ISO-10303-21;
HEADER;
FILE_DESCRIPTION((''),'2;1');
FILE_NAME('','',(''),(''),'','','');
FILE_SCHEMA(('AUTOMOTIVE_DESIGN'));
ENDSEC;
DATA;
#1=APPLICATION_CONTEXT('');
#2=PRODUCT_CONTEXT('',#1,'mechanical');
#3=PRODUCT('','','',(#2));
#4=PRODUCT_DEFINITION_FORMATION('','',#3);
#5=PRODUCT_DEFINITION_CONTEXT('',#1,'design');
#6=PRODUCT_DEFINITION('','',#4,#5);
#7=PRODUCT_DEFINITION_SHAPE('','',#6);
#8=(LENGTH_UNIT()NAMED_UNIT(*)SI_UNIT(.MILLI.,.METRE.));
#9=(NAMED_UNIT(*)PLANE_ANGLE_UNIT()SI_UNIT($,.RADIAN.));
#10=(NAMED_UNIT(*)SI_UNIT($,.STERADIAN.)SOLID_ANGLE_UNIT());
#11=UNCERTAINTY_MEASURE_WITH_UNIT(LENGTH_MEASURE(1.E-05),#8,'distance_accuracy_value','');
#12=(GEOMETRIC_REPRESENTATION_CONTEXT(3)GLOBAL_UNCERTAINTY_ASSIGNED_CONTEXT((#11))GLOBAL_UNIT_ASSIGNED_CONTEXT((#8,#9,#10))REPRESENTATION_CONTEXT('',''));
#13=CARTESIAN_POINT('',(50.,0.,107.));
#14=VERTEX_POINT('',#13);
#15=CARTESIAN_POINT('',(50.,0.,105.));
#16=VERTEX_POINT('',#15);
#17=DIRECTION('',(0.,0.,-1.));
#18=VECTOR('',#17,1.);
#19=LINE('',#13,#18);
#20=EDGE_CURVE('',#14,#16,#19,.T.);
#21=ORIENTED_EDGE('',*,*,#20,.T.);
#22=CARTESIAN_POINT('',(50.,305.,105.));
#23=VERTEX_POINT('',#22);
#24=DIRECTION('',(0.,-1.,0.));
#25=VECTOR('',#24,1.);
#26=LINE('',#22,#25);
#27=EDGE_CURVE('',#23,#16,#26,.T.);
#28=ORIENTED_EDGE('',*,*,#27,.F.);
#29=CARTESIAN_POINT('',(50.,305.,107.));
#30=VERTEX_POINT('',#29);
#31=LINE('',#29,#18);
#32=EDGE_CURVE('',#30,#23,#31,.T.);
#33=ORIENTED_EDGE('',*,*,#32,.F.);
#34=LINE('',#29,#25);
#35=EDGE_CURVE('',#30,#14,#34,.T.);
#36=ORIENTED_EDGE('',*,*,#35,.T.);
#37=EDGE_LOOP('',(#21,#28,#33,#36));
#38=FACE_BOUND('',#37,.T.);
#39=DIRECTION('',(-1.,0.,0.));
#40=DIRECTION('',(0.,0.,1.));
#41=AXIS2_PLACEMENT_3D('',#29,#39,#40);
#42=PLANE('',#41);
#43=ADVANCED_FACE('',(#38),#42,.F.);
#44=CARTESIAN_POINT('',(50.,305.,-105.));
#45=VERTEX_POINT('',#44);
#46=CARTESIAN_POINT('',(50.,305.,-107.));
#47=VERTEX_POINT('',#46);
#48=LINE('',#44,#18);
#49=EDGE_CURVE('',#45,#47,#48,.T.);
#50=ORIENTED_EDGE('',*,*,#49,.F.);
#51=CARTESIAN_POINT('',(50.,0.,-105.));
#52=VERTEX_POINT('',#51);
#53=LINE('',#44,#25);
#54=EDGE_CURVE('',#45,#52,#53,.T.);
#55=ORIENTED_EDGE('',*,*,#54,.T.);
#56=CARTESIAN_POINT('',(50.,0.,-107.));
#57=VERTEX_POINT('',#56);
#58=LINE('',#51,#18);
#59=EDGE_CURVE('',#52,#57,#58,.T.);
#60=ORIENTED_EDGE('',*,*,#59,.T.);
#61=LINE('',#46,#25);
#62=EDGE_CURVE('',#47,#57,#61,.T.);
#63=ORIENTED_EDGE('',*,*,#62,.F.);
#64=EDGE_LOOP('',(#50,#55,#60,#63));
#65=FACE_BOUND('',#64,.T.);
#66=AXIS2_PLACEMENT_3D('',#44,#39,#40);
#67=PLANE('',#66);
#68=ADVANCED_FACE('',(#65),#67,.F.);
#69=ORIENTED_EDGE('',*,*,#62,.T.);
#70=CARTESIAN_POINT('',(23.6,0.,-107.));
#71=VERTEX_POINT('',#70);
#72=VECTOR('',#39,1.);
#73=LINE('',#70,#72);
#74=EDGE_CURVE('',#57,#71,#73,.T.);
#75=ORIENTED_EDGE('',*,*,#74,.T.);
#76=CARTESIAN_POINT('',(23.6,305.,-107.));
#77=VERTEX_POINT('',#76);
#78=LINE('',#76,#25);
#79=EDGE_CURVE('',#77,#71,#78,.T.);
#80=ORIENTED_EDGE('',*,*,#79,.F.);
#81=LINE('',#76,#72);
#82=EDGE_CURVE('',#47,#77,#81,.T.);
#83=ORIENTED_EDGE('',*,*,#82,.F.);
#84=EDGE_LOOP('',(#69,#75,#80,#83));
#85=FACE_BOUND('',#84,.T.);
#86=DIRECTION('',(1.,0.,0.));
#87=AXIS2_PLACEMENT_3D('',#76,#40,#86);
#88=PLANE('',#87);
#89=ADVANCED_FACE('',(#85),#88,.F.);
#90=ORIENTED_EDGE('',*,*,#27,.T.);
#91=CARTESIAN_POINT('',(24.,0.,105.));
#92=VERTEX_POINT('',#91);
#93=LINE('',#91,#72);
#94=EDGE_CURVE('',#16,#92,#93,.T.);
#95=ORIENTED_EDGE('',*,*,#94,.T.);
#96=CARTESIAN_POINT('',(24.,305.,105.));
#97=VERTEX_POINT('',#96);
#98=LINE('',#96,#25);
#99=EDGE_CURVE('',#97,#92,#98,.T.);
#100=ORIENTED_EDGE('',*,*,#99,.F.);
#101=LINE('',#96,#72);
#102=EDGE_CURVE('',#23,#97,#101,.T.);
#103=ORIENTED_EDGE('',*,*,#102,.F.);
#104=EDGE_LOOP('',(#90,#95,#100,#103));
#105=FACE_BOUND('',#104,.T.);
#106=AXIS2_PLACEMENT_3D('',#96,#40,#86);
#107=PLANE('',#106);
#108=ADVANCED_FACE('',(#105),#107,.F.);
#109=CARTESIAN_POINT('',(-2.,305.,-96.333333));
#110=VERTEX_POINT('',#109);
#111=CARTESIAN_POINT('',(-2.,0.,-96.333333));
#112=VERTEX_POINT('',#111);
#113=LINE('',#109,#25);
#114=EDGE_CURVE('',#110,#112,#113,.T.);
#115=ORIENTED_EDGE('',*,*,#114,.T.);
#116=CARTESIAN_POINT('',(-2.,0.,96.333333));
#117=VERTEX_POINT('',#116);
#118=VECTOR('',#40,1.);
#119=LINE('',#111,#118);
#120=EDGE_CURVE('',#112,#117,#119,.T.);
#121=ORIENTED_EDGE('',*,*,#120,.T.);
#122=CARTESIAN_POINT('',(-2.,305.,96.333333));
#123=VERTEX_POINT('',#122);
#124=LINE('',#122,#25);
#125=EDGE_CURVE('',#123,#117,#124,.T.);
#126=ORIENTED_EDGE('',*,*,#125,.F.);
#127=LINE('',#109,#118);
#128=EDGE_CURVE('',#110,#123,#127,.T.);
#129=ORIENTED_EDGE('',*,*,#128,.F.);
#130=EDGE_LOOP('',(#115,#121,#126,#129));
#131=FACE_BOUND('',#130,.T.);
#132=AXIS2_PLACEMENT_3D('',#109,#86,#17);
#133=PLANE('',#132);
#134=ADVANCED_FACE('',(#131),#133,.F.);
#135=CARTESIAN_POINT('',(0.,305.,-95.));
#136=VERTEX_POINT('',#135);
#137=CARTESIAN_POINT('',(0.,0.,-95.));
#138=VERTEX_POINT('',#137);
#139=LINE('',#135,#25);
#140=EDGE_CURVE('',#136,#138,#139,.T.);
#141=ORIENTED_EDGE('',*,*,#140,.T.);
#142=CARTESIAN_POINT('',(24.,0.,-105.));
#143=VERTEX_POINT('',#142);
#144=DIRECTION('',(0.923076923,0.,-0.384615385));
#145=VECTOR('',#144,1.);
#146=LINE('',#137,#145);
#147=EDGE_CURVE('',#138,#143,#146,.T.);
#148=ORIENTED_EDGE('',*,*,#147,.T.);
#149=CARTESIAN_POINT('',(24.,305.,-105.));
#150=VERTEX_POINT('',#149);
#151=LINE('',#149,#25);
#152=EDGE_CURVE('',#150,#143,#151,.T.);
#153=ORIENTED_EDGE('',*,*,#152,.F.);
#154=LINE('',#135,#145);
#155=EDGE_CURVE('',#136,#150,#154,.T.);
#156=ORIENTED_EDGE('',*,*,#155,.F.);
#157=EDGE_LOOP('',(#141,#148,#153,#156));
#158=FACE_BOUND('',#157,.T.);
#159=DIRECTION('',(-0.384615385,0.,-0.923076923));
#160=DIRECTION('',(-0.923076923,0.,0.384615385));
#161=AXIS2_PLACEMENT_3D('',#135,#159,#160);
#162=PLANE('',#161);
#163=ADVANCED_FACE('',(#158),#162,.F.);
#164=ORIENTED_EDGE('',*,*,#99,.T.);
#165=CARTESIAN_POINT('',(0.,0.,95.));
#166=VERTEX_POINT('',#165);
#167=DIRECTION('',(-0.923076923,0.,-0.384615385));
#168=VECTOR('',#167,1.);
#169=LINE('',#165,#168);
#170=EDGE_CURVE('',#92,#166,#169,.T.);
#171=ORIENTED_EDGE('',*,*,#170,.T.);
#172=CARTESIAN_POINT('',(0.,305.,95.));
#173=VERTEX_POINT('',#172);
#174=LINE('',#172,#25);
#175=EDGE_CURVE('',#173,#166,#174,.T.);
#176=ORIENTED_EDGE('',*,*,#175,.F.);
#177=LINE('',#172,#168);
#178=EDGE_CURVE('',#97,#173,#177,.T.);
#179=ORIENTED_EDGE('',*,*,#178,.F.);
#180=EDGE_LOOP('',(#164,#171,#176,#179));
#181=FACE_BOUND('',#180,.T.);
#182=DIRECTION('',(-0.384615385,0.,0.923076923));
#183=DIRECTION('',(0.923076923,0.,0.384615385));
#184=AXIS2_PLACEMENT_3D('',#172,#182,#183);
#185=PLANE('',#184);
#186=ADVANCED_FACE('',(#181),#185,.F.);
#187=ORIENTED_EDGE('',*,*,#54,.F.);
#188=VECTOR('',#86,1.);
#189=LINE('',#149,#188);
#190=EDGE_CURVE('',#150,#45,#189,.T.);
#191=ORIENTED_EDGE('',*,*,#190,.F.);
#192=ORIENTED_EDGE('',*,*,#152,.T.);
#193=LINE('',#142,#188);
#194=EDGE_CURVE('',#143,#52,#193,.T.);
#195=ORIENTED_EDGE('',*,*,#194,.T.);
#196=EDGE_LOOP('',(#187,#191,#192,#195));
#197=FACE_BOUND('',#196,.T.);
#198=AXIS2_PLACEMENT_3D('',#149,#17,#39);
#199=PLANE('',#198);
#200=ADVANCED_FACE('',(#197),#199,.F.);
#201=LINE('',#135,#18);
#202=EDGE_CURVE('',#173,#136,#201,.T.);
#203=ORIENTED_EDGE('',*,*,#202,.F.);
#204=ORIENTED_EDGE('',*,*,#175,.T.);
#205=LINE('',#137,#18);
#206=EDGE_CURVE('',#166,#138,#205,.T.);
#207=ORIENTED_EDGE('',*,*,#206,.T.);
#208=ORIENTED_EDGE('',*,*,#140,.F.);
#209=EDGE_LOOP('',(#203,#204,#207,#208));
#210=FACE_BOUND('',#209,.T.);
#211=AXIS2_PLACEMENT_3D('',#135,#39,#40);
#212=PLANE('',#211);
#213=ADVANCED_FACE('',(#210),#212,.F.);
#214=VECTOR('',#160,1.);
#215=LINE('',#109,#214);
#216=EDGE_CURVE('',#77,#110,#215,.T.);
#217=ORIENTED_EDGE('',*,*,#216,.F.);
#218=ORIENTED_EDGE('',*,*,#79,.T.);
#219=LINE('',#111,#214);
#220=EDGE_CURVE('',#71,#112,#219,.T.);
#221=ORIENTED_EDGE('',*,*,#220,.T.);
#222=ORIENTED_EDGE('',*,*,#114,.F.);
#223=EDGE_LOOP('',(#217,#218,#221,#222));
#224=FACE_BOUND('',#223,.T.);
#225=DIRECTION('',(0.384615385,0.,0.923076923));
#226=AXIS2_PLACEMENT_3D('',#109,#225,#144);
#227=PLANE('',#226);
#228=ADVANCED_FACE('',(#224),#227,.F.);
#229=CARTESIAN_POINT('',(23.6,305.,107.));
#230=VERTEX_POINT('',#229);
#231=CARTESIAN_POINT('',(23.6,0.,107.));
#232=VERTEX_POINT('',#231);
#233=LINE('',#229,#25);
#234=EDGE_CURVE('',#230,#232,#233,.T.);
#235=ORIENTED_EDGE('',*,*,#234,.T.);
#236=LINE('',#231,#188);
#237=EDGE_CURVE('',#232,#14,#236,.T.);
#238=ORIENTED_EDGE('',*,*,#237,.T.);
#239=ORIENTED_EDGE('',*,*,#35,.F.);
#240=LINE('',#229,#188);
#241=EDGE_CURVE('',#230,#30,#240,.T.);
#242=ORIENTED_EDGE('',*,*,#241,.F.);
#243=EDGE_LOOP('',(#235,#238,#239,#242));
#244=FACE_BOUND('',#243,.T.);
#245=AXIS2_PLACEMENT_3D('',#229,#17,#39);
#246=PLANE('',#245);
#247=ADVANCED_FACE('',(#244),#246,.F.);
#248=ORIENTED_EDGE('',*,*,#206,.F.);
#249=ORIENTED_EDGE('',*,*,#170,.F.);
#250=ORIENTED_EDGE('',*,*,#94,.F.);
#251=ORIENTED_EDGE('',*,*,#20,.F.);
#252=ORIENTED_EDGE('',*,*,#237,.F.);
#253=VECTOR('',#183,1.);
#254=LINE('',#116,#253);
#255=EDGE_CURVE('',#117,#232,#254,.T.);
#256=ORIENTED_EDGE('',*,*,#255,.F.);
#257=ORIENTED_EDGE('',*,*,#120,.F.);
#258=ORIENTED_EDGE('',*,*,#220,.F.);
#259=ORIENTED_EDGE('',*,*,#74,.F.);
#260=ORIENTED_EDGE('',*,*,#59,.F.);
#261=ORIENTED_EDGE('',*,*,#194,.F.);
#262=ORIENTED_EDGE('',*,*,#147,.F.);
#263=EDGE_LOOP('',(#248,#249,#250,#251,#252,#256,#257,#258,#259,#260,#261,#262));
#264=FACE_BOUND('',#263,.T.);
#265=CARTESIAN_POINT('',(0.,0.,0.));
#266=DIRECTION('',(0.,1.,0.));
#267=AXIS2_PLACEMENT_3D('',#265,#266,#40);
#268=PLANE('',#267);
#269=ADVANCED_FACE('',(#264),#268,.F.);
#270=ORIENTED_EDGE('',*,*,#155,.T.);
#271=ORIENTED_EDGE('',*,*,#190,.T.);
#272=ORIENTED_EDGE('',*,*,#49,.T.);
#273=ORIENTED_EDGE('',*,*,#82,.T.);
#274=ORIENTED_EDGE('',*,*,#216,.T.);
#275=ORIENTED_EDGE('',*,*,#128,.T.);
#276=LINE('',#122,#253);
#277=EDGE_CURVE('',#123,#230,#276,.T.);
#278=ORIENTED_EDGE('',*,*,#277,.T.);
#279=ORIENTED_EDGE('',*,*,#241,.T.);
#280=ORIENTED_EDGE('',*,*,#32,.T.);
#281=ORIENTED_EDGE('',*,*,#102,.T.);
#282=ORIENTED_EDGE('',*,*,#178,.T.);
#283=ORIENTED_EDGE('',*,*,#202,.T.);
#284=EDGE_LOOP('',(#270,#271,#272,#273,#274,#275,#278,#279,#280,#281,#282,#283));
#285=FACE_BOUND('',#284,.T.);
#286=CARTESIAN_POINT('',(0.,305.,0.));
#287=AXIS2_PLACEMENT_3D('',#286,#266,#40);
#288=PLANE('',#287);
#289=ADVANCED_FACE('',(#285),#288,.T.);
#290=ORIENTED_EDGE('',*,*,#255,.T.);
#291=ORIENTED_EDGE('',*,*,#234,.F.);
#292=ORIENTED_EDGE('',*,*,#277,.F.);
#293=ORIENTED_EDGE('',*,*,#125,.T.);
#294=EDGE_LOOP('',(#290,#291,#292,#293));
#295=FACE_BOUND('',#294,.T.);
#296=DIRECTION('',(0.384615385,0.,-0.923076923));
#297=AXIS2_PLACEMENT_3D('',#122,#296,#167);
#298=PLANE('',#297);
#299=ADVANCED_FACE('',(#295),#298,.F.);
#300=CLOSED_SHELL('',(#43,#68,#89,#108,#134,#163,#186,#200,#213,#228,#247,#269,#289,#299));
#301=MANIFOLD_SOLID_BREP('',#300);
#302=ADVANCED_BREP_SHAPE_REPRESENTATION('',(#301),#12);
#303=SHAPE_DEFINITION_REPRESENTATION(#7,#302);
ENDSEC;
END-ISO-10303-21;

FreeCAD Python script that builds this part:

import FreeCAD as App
import Part
import Sketcher
from FreeCAD import Vector
Q = App.Units.Quantity

doc = App.newDocument("Part")
body = doc.addObject("PartDesign::Body", "Body")

# Sketch on XZ plane
sketch1 = body.newObject("Sketcher::SketchObject", "Sketch")
sketch1.AttachmentSupport = (doc.getObject("XZ_Plane"), [""])
sketch1.MapMode = "FlatFace"
sketch1.addGeometry([
    Part.LineSegment(Vector(0, 95, 0), Vector(0, -95, 0)),  # 0
    Part.LineSegment(Vector(0, -95, 0), Vector(24, -105, 0)),  # 1
    Part.LineSegment(Vector(24, -105, 0), Vector(50, -105, 0)),  # 2
    Part.LineSegment(Vector(50, -105, 0), Vector(50, -107, 0)),  # 3
    Part.LineSegment(Vector(50, -107, 0), Vector(23.6, -107, 0)),  # 4
    Part.LineSegment(Vector(23.6, -107, 0), Vector(-2, -96.3, 0)),  # 5
    Part.LineSegment(Vector(-2, -96.3, 0), Vector(-2, 96.3, 0)),  # 6
    Part.LineSegment(Vector(-2, 96.3, 0), Vector(23.6, 107, 0)),  # 7
    Part.LineSegment(Vector(23.6, 107, 0), Vector(50, 107, 0)),  # 8
    Part.LineSegment(Vector(50, 107, 0), Vector(50, 105, 0)),  # 9
    Part.LineSegment(Vector(50, 105, 0), Vector(24, 105, 0)),  # 10
    Part.LineSegment(Vector(24, 105, 0), Vector(0, 95, 0)),  # 11
], False)
sketch1.addConstraint([
    Sketcher.Constraint("Coincident", 0, 2, 1, 1),
    Sketcher.Constraint("Coincident", 1, 2, 2, 1),
    Sketcher.Constraint("Coincident", 2, 2, 3, 1),
    Sketcher.Constraint("Coincident", 3, 2, 4, 1),
    Sketcher.Constraint("Coincident", 4, 2, 5, 1),
    Sketcher.Constraint("Coincident", 5, 2, 6, 1),
    Sketcher.Constraint("Coincident", 6, 2, 7, 1),
    Sketcher.Constraint("Coincident", 7, 2, 8, 1),
    Sketcher.Constraint("Coincident", 8, 2, 9, 1),
    Sketcher.Constraint("Coincident", 9, 2, 10, 1),
    Sketcher.Constraint("Coincident", 10, 2, 11, 1),
    Sketcher.Constraint("Coincident", 11, 2, 0, 1),
    Sketcher.Constraint("Vertical", 0),
    Sketcher.Constraint("Horizontal", 2),
    Sketcher.Constraint("Vertical", 3),
    Sketcher.Constraint("Horizontal", 4),
    Sketcher.Constraint("Vertical", 6),
    Sketcher.Constraint("Horizontal", 8),
    Sketcher.Constraint("Vertical", 9),
    Sketcher.Constraint("Horizontal", 10),
    Sketcher.Constraint("Symmetric", 0, 2, 11, 2, -1, 1),
    Sketcher.Constraint("Symmetric", 4, 2, 7, 2, -1),
    Sketcher.Constraint("Symmetric", 2, 2, 9, 2, -1),
    Sketcher.Constraint("Parallel", 1, 5),
    Sketcher.Constraint("Parallel", 7, 11),
    Sketcher.Constraint("Vertical", 1, 2, 10, 2),
    Sketcher.Constraint("DistanceX", 2, 1, 2, 2, Q("26 mm")),
    Sketcher.Constraint("DistanceY", 0, 2, 0, 1, Q("190 mm")),
    Sketcher.Constraint("DistanceY", 3, 2, 3, 1, Q("2 mm")),
    Sketcher.Constraint("Distance", 1, Q("26 mm")),
    Sketcher.Constraint("DistanceX", 4, 2, 4, 1, Q("26.4 mm")),
    Sketcher.Constraint("DistanceX", -1, 1, 1, 2, Q("24 mm")),
    Sketcher.Constraint("DistanceX", 5, 2, -1, 1, Q("2 mm")),
])
pad1 = body.newObject("PartDesign::Pad", "Pad")
pad1.Profile = sketch1
pad1.Length = 305
pad1.Reversed = True

doc.recompute()
